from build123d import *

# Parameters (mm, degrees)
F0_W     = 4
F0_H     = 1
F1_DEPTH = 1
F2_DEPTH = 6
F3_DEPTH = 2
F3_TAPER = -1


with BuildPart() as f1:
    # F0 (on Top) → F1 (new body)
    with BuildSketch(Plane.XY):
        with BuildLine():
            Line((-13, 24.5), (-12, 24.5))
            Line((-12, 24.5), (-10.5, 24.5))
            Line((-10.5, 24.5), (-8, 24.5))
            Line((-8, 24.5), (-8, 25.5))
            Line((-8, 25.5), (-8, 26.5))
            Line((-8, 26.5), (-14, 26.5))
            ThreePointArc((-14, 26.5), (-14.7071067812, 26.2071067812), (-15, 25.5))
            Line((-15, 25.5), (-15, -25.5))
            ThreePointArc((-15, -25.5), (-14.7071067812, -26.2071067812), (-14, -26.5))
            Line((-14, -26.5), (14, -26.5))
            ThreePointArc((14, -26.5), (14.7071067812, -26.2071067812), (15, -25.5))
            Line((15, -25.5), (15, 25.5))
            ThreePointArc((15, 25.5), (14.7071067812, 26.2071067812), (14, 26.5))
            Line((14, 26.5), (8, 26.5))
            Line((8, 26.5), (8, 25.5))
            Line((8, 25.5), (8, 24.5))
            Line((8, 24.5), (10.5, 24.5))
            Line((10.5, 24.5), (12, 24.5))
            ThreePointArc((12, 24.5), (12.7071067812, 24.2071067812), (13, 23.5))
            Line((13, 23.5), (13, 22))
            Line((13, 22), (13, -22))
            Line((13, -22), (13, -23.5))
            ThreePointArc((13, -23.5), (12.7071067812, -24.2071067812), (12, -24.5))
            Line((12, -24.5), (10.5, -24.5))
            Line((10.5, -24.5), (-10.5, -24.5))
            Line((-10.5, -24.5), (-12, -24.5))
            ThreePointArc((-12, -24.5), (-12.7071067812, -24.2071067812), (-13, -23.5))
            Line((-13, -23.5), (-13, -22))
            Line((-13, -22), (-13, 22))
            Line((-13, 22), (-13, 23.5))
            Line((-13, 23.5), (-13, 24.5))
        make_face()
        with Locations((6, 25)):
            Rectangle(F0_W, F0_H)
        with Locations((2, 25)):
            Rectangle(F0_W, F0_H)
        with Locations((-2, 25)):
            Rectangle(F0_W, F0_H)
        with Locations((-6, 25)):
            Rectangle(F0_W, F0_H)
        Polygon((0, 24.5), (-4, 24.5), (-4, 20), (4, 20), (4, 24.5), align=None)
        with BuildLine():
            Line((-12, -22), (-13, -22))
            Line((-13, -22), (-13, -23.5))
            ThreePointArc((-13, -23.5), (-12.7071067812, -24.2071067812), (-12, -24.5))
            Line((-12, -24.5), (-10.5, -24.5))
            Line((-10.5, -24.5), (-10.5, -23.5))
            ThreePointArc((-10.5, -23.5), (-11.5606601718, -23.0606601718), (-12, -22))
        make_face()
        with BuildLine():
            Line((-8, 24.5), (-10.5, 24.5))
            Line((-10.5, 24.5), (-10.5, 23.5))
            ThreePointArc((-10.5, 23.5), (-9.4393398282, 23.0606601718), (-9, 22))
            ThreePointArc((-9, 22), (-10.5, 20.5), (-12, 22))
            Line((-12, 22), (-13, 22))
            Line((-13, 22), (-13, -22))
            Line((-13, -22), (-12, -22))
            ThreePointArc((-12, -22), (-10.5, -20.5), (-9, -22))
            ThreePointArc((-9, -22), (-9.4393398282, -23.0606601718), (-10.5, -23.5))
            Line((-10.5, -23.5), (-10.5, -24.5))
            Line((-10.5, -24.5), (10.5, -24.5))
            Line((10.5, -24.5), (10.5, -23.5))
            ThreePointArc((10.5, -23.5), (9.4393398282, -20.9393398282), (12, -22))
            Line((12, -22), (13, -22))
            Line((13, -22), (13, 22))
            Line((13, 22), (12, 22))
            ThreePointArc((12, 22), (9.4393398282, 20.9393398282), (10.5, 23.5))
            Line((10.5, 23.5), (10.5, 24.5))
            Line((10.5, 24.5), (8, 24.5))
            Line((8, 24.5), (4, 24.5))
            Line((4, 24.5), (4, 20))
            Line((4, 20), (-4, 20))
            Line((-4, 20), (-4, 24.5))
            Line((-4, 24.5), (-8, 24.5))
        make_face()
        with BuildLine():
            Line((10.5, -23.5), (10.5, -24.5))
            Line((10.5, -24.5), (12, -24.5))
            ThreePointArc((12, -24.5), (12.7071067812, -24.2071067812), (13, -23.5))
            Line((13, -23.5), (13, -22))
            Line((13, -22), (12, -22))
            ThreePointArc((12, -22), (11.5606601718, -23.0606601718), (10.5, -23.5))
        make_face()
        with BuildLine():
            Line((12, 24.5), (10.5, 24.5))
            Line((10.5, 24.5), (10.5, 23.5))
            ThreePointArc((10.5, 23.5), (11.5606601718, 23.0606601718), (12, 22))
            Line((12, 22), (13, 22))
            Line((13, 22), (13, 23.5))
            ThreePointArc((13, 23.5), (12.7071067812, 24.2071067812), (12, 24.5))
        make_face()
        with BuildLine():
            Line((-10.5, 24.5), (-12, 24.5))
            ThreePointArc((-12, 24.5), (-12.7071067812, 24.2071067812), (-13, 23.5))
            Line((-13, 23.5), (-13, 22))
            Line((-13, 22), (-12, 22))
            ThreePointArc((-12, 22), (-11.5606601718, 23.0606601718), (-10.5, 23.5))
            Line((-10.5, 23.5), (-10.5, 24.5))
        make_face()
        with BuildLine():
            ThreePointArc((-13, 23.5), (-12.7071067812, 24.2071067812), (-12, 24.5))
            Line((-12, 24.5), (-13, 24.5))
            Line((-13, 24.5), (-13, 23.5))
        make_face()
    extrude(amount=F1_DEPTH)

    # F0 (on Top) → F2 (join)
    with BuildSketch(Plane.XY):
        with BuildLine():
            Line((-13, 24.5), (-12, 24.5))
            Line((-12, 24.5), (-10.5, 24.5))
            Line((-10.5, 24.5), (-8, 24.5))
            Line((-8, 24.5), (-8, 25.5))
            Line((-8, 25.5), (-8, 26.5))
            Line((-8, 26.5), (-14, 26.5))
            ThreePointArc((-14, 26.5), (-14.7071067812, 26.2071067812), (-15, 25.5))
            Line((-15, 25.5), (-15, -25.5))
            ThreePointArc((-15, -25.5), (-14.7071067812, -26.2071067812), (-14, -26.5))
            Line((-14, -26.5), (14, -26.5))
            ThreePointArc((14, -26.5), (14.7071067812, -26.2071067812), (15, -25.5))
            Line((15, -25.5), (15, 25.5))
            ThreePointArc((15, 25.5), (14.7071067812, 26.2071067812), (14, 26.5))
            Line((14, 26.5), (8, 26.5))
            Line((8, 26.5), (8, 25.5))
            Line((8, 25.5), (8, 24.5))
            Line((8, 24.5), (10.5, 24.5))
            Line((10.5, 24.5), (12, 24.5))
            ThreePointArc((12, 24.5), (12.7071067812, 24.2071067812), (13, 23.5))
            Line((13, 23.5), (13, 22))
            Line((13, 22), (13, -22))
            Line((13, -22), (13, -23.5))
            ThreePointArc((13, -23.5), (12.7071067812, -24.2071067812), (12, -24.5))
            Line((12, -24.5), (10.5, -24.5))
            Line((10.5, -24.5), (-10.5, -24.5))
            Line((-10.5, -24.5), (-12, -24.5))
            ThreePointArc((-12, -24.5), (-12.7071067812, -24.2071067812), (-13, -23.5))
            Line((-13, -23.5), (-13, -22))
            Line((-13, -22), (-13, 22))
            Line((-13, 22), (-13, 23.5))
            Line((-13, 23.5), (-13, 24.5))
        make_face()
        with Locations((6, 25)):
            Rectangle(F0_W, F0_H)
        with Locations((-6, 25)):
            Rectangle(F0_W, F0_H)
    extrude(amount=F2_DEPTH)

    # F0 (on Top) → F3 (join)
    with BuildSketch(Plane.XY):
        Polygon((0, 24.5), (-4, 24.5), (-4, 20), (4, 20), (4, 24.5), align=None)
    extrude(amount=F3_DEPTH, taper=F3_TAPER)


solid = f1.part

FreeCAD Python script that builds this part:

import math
import FreeCAD as App
import Part
import Sketcher
from FreeCAD import Vector
Q = App.Units.Quantity


def add_polygon(sketch, points):
    """Adds a closed chain of lines whose ends are joined by coincident constraints."""
    first, n = sketch.GeometryCount, len(points)
    for a, b in zip(points, points[1:] + points[:1]):
        sketch.addGeometry(Part.LineSegment(App.Vector(*a, 0), App.Vector(*b, 0)), False)
    for i in range(n):
        sketch.addConstraint(Sketcher.Constraint("Coincident", first + i, 2, first + (i + 1) % n, 1))

doc = App.newDocument("Part")
body = doc.addObject("PartDesign::Body", "Body")

sketch1 = body.newObject("Sketcher::SketchObject", "Sketch")
sketch1.AttachmentSupport = (doc.getObject("XY_Plane"), [""])
sketch1.MapMode = "FlatFace"
sketch1.addGeometry(Part.LineSegment(Vector(-8, 25.5, 0), Vector(-8, 26.5, 0)), False)
sketch1.addGeometry(Part.LineSegment(Vector(-8, 26.5, 0), Vector(-14, 26.5, 0)), False)
sketch1.addGeometry(Part.ArcOfCircle(Part.Circle(Vector(-14, 25.5, 0), Vector(0, 0, 1), 1), math.radians(90), math.radians(180)), False)
sketch1.addGeometry(Part.LineSegment(Vector(-15, 25.5, 0), Vector(-15, -25.5, 0)), False)
sketch1.addGeometry(Part.ArcOfCircle(Part.Circle(Vector(-14, -25.5, 0), Vector(0, 0, 1), 1), math.radians(180), math.radians(270)), False)
sketch1.addGeometry(Part.LineSegment(Vector(-14, -26.5, 0), Vector(14, -26.5, 0)), False)
sketch1.addGeometry(Part.ArcOfCircle(Part.Circle(Vector(14, -25.5, 0), Vector(0, 0, 1), 1), math.radians(-90), math.radians(0)), False)
sketch1.addGeometry(Part.LineSegment(Vector(15, -25.5, 0), Vector(15, 25.5, 0)), False)
sketch1.addGeometry(Part.ArcOfCircle(Part.Circle(Vector(14, 25.5, 0), Vector(0, 0, 1), 1), math.radians(0), math.radians(90)), False)
sketch1.addGeometry(Part.LineSegment(Vector(14, 26.5, 0), Vector(8, 26.5, 0)), False)
sketch1.addGeometry(Part.LineSegment(Vector(8, 26.5, 0), Vector(8, 25.5, 0)), False)
sketch1.addGeometry(Part.LineSegment(Vector(8, 25.5, 0), Vector(-8, 25.5, 0)), False)
sketch1.addGeometry(Part.ArcOfCircle(Part.Circle(Vector(-10.5, 22, 0), Vector(0, 0, 1), 1.5), math.radians(0), math.radians(90)), False)
sketch1.addGeometry(Part.ArcOfCircle(Part.Circle(Vector(-10.5, 22, 0), Vector(0, 0, 1), 1.5), math.radians(180), math.radians(360)), False)
sketch1.addGeometry(Part.ArcOfCircle(Part.Circle(Vector(-10.5, 22, 0), Vector(0, 0, 1), 1.5), math.radians(90), math.radians(180)), False)
sketch1.addGeometry(Part.ArcOfCircle(Part.Circle(Vector(-10.5, -22, 0), Vector(0, 0, 1), 1.5), math.radians(180), math.radians(270)), False)
sketch1.addGeometry(Part.ArcOfCircle(Part.Circle(Vector(-10.5, -22, 0), Vector(0, 0, 1), 1.5), math.radians(0), math.radians(180)), False)
sketch1.addGeometry(Part.ArcOfCircle(Part.Circle(Vector(-10.5, -22, 0), Vector(0, 0, 1), 1.5), math.radians(-90), math.radians(0)), False)
sketch1.addGeometry(Part.ArcOfCircle(Part.Circle(Vector(10.5, -22, 0), Vector(0, 0, 1), 1.5), math.radians(-90), math.radians(0)), False)
sketch1.addGeometry(Part.ArcOfCircle(Part.Circle(Vector(10.5, -22, 0), Vector(0, 0, 1), 1.5), math.radians(0), math.radians(270)), False)
sketch1.addGeometry(Part.ArcOfCircle(Part.Circle(Vector(10.5, 22, 0), Vector(0, 0, 1), 1.5), math.radians(90), math.radians(360)), False)
sketch1.addGeometry(Part.ArcOfCircle(Part.Circle(Vector(10.5, 22, 0), Vector(0, 0, 1), 1.5), math.radians(0), math.radians(90)), False)
sketch1.addConstraint(Sketcher.Constraint("Coincident", 0, 2, 1, 1))
sketch1.addConstraint(Sketcher.Constraint("Tangent", 1, 2, 2, 1))
sketch1.addConstraint(Sketcher.Constraint("Tangent", 2, 2, 3, 1))
sketch1.addConstraint(Sketcher.Constraint("Tangent", 3, 2, 4, 1))
sketch1.addConstraint(Sketcher.Constraint("Tangent", 4, 2, 5, 1))
sketch1.addConstraint(Sketcher.Constraint("Tangent", 5, 2, 6, 1))
sketch1.addConstraint(Sketcher.Constraint("Tangent", 6, 2, 7, 1))
sketch1.addConstraint(Sketcher.Constraint("Tangent", 7, 2, 8, 1))
sketch1.addConstraint(Sketcher.Constraint("Tangent", 8, 2, 9, 1))
sketch1.addConstraint(Sketcher.Constraint("Coincident", 9, 2, 10, 1))
sketch1.addConstraint(Sketcher.Constraint("Coincident", 10, 2, 11, 1))
sketch1.addConstraint(Sketcher.Constraint("Coincident", 11, 2, 0, 1))
sketch1.addConstraint(Sketcher.Constraint("Tangent", 12, 1, 13, 2))
sketch1.addConstraint(Sketcher.Constraint("Tangent", 13, 1, 14, 2))
sketch1.addConstraint(Sketcher.Constraint("Tangent", 14, 1, 12, 2))
sketch1.addConstraint(Sketcher.Constraint("Tangent", 15, 1, 16, 2))
sketch1.addConstraint(Sketcher.Constraint("Tangent", 16, 1, 17, 2))
sketch1.addConstraint(Sketcher.Constraint("Tangent", 17, 1, 15, 2))
sketch1.addConstraint(Sketcher.Constraint("Tangent", 18, 1, 19, 2))
sketch1.addConstraint(Sketcher.Constraint("Coincident", 19, 1, 18, 2))
sketch1.addConstraint(Sketcher.Constraint("Tangent", 20, 1, 21, 2))
sketch1.addConstraint(Sketcher.Constraint("Coincident", 21, 1, 20, 2))
sketch1.addConstraint(Sketcher.Constraint("Vertical", 0))
sketch1.addConstraint(Sketcher.Constraint("Horizontal", 1))
sketch1.addConstraint(Sketcher.Constraint("Vertical", 3))
sketch1.addConstraint(Sketcher.Constraint("Horizontal", 5))
sketch1.addConstraint(Sketcher.Constraint("Vertical", 7))
sketch1.addConstraint(Sketcher.Constraint("Horizontal", 9))
sketch1.addConstraint(Sketcher.Constraint("Vertical", 10))
sketch1.addConstraint(Sketcher.Constraint("Horizontal", 11))
sketch1.addConstraint(Sketcher.Constraint("Equal", 2, 4))
sketch1.addConstraint(Sketcher.Constraint("Equal", 4, 6))
sketch1.addConstraint(Sketcher.Constraint("Equal", 6, 8))
sketch1.addConstraint(Sketcher.Constraint("Equal", 14, 15))
sketch1.addConstraint(Sketcher.Constraint("Equal", 17, 18))
sketch1.addConstraint(Sketcher.Constraint("Equal", 19, 20))
sketch1.addConstraint(Sketcher.Constraint("Symmetric", 2, 3, 6, 3, -1, 1))
sketch1.addConstraint(Sketcher.Constraint("Symmetric", 12, 3, 18, 3, -1, 1))
sketch1.addConstraint(Sketcher.Constraint("Symmetric", 15, 3, 20, 3, -1, 1))
sketch1.addConstraint(Sketcher.Constraint("Symmetric", 15, 3, 18, 3, -2))
sketch1.addConstraint(Sketcher.Constraint("Symmetric", 0, 2, 9, 2, -2))
sketch1.addConstraint(Sketcher.Constraint("Horizontal", 7, 2, 10, 2))
sketch1.addConstraint(Sketcher.Constraint("Horizontal", 21, 3, 12, 1))
sketch1.addConstraint(Sketcher.Constraint("Horizontal", 12, 1, 13, 1))
sketch1.addConstraint(Sketcher.Constraint("Horizontal", 19, 3, 15, 1))
sketch1.addConstraint(Sketcher.Constraint("Horizontal", 15, 1, 16, 1))
sketch1.addConstraint(Sketcher.Constraint("Horizontal", 16, 1, 19, 1))
sketch1.addConstraint(Sketcher.Constraint("Horizontal", 13, 1, 21, 1))
sketch1.addConstraint(Sketcher.Constraint("Vertical", 17, 3, 14, 1))
sketch1.addConstraint(Sketcher.Constraint("Vertical", 14, 1, 17, 1))
sketch1.addConstraint(Sketcher.Constraint("Vertical", 21, 3, 18, 1))
sketch1.addConstraint(Sketcher.Constraint("Vertical", 18, 1, 20, 1))
sketch1.addConstraint(Sketcher.Constraint("Radius", 2, Q("1 mm")))
sketch1.addConstraint(Sketcher.Constraint("Radius", 12, Q("1.5 mm")))
sketch1.addConstraint(Sketcher.Constraint("DistanceX", 1, 2, 1, 1, Q("6 mm")))
sketch1.addConstraint(Sketcher.Constraint("DistanceX", 5, 1, 5, 2, Q("28 mm")))
sketch1.addConstraint(Sketcher.Constraint("DistanceY", 3, 2, 3, 1, Q("51 mm")))
sketch1.addConstraint(Sketcher.Constraint("DistanceY", -1, 1, 12, 3, Q("22 mm")))
sketch1.addConstraint(Sketcher.Constraint("DistanceX", 12, 1, -1, 1, Q("9 mm")))
pad1 = body.newObject("PartDesign::Pad", "Pad")
pad1.Profile = sketch1
pad1.Length = 1

sketch2 = body.newObject("Sketcher::SketchObject", "Sketch001")
sketch2.AttachmentSupport = (doc.getObject("XY_Plane"), [""])
sketch2.MapMode = "FlatFace"
sketch2.addGeometry(Part.LineSegment(Vector(-13, 24.5, 0), Vector(-4, 24.5, 0)), False)
sketch2.addGeometry(Part.LineSegment(Vector(-4, 24.5, 0), Vector(-4, 25.5, 0)), False)
sketch2.addGeometry(Part.LineSegment(Vector(-4, 25.5, 0), Vector(-8, 25.5, 0)), False)
sketch2.addGeometry(Part.LineSegment(Vector(-8, 25.5, 0), Vector(-8, 26.5, 0)), False)
sketch2.addGeometry(Part.LineSegment(Vector(-8, 26.5, 0), Vector(-14, 26.5, 0)), False)
sketch2.addGeometry(Part.ArcOfCircle(Part.Circle(Vector(-14, 25.5, 0), Vector(0, 0, 1), 1), math.radians(90), math.radians(180)), False)
sketch2.addGeometry(Part.LineSegment(Vector(-15, 25.5, 0), Vector(-15, -25.5, 0)), False)
sketch2.addGeometry(Part.ArcOfCircle(Part.Circle(Vector(-14, -25.5, 0), Vector(0, 0, 1), 1), math.radians(180), math.radians(270)), False)
sketch2.addGeometry(Part.LineSegment(Vector(-14, -26.5, 0), Vector(14, -26.5, 0)), False)
sketch2.addGeometry(Part.ArcOfCircle(Part.Circle(Vector(14, -25.5, 0), Vector(0, 0, 1), 1), math.radians(-90), math.radians(0)), False)
sketch2.addGeometry(Part.LineSegment(Vector(15, -25.5, 0), Vector(15, 25.5, 0)), False)
sketch2.addGeometry(Part.ArcOfCircle(Part.Circle(Vector(14, 25.5, 0), Vector(0, 0, 1), 1), math.radians(0), math.radians(90)), False)
sketch2.addGeometry(Part.LineSegment(Vector(14, 26.5, 0), Vector(8, 26.5, 0)), False)
sketch2.addGeometry(Part.LineSegment(Vector(8, 26.5, 0), Vector(8, 25.5, 0)), False)
sketch2.addGeometry(Part.LineSegment(Vector(8, 25.5, 0), Vector(4, 25.5, 0)), False)
sketch2.addGeometry(Part.LineSegment(Vector(4, 25.5, 0), Vector(4, 24.5, 0)), False)
sketch2.addGeometry(Part.LineSegment(Vector(4, 24.5, 0), Vector(12, 24.5, 0)), False)
sketch2.addGeometry(Part.ArcOfCircle(Part.Circle(Vector(12, 23.5, 0), Vector(0, 0, 1), 1), math.radians(0), math.radians(90)), False)
sketch2.addGeometry(Part.LineSegment(Vector(13, 23.5, 0), Vector(13, -23.5, 0)), False)
sketch2.addGeometry(Part.ArcOfCircle(Part.Circle(Vector(12, -23.5, 0), Vector(0, 0, 1), 1), math.radians(-90), math.radians(0)), False)
sketch2.addGeometry(Part.LineSegment(Vector(12, -24.5, 0), Vector(-12, -24.5, 0)), False)
sketch2.addGeometry(Part.ArcOfCircle(Part.Circle(Vector(-12, -23.5, 0), Vector(0, 0, 1), 1), math.radians(180), math.radians(270)), False)
sketch2.addGeometry(Part.LineSegment(Vector(-13, -23.5, 0), Vector(-13, 24.5, 0)), False)
sketch2.addConstraint(Sketcher.Constraint("Coincident", 0, 2, 1, 1))
sketch2.addConstraint(Sketcher.Constraint("Coincident", 1, 2, 2, 1))
sketch2.addConstraint(Sketcher.Constraint("Coincident", 2, 2, 3, 1))
sketch2.addConstraint(Sketcher.Constraint("Coincident", 3, 2, 4, 1))
sketch2.addConstraint(Sketcher.Constraint("Tangent", 4, 2, 5, 1))
sketch2.addConstraint(Sketcher.Constraint("Tangent", 5, 2, 6, 1))
sketch2.addConstraint(Sketcher.Constraint("Tangent", 6, 2, 7, 1))
sketch2.addConstraint(Sketcher.Constraint("Tangent", 7, 2, 8, 1))
sketch2.addConstraint(Sketcher.Constraint("Tangent", 8, 2, 9, 1))
sketch2.addConstraint(Sketcher.Constraint("Tangent", 9, 2, 10, 1))
sketch2.addConstraint(Sketcher.Constraint("Tangent", 10, 2, 11, 1))
sketch2.addConstraint(Sketcher.Constraint("Tangent", 11, 2, 12, 1))
sketch2.addConstraint(Sketcher.Constraint("Coincident", 12, 2, 13, 1))
sketch2.addConstraint(Sketcher.Constraint("Coincident", 13, 2, 14, 1))
sketch2.addConstraint(Sketcher.Constraint("Coincident", 14, 2, 15, 1))
sketch2.addConstraint(Sketcher.Constraint("Coincident", 15, 2, 16, 1))
sketch2.addConstraint(Sketcher.Constraint("Tangent", 16, 2, 17, 2))
sketch2.addConstraint(Sketcher.Constraint("Tangent", 17, 1, 18, 1))
sketch2.addConstraint(Sketcher.Constraint("Tangent", 18, 2, 19, 2))
sketch2.addConstraint(Sketcher.Constraint("Tangent", 19, 1, 20, 1))
sketch2.addConstraint(Sketcher.Constraint("Tangent", 20, 2, 21, 2))
sketch2.addConstraint(Sketcher.Constraint("Tangent", 21, 1, 22, 1))
sketch2.addConstraint(Sketcher.Constraint("Coincident", 22, 2, 0, 1))
sketch2.addConstraint(Sketcher.Constraint("Horizontal", 0))
sketch2.addConstraint(Sketcher.Constraint("Vertical", 1))
sketch2.addConstraint(Sketcher.Constraint("Horizontal", 2))
sketch2.addConstraint(Sketcher.Constraint("Vertical", 3))
sketch2.addConstraint(Sketcher.Constraint("Horizontal", 4))
sketch2.addConstraint(Sketcher.Constraint("Vertical", 6))
sketch2.addConstraint(Sketcher.Constraint("Horizontal", 8))
sketch2.addConstraint(Sketcher.Constraint("Vertical", 10))
sketch2.addConstraint(Sketcher.Constraint("Horizontal", 12))
sketch2.addConstraint(Sketcher.Constraint("Vertical", 13))
sketch2.addConstraint(Sketcher.Constraint("Horizontal", 14))
sketch2.addConstraint(Sketcher.Constraint("Vertical", 15))
sketch2.addConstraint(Sketcher.Constraint("Horizontal", 16))
sketch2.addConstraint(Sketcher.Constraint("Vertical", 18))
sketch2.addConstraint(Sketcher.Constraint("Horizontal", 20))
sketch2.addConstraint(Sketcher.Constraint("Vertical", 22))
sketch2.addConstraint(Sketcher.Constraint("Equal", 5, 7))
sketch2.addConstraint(Sketcher.Constraint("Equal", 7, 9))
sketch2.addConstraint(Sketcher.Constraint("Equal", 9, 11))
sketch2.addConstraint(Sketcher.Constraint("Equal", 11, 17))
sketch2.addConstraint(Sketcher.Constraint("Equal", 17, 19))
sketch2.addConstraint(Sketcher.Constraint("Equal", 19, 21))
sketch2.addConstraint(Sketcher.Constraint("Symmetric", 5, 3, 9, 3, -1, 1))
sketch2.addConstraint(Sketcher.Constraint("Symmetric", 17, 3, 21, 3, -1, 1))
sketch2.addConstraint(Sketcher.Constraint("Symmetric", 3, 2, 12, 2, -2))
sketch2.addConstraint(Sketcher.Constraint("Symmetric", 1, 2, 14, 2, -2))
sketch2.addConstraint(Sketcher.Constraint("Horizontal", 11, 3, 1, 2))
sketch2.addConstraint(Sketcher.Constraint("Horizontal", 0, 2, 15, 2))
sketch2.addConstraint(Sketcher.Constraint("Equal", 1, 3))
sketch2.addConstraint(Sketcher.Constraint("Radius", 5, Q("1 mm")))
sketch2.addConstraint(Sketcher.Constraint("DistanceX", 0, 1, 0, 2, Q("9 mm")))
sketch2.addConstraint(Sketcher.Constraint("DistanceX", 2, 2, 2, 1, Q("4 mm")))
sketch2.addConstraint(Sketcher.Constraint("DistanceX", 4, 2, 4, 1, Q("6 mm")))
sketch2.addConstraint(Sketcher.Constraint("DistanceX", 8, 1, 8, 2, Q("28 mm")))
sketch2.addConstraint(Sketcher.Constraint("DistanceY", 6, 2, 6, 1, Q("51 mm")))
pad2 = body.newObject("PartDesign::Pad", "Pad001")
pad2.Profile = sketch2
pad2.Length = 6

sketch3 = body.newObject("Sketcher::SketchObject", "Sketch002")
sketch3.AttachmentSupport = (doc.getObject("XY_Plane"), [""])
sketch3.MapMode = "FlatFace"
add_polygon(sketch3, [(-4, 24.5), (-4, 20), (4, 20), (4, 24.5)])
sketch3.addConstraint(Sketcher.Constraint("Vertical", 0))
sketch3.addConstraint(Sketcher.Constraint("Horizontal", 1))
sketch3.addConstraint(Sketcher.Constraint("Vertical", 2))
sketch3.addConstraint(Sketcher.Constraint("Horizontal", 3))
sketch3.addConstraint(Sketcher.Constraint("DistanceX", 1, 1, 1, 2, Q("8 mm")))
sketch3.addConstraint(Sketcher.Constraint("DistanceY", 0, 2, 0, 1, Q("4.5 mm")))
sketch3.addConstraint(Sketcher.Constraint("DistanceX", 0, 2, -1, 1, Q("4 mm")))
sketch3.addConstraint(Sketcher.Constraint("DistanceY", -1, 1, 0, 2, Q("20 mm")))
pad3 = body.newObject("PartDesign::Pad", "Pad002")
pad3.Profile = sketch3
pad3.Length = 2
pad3.TaperAngle = 1

doc.recompute()
